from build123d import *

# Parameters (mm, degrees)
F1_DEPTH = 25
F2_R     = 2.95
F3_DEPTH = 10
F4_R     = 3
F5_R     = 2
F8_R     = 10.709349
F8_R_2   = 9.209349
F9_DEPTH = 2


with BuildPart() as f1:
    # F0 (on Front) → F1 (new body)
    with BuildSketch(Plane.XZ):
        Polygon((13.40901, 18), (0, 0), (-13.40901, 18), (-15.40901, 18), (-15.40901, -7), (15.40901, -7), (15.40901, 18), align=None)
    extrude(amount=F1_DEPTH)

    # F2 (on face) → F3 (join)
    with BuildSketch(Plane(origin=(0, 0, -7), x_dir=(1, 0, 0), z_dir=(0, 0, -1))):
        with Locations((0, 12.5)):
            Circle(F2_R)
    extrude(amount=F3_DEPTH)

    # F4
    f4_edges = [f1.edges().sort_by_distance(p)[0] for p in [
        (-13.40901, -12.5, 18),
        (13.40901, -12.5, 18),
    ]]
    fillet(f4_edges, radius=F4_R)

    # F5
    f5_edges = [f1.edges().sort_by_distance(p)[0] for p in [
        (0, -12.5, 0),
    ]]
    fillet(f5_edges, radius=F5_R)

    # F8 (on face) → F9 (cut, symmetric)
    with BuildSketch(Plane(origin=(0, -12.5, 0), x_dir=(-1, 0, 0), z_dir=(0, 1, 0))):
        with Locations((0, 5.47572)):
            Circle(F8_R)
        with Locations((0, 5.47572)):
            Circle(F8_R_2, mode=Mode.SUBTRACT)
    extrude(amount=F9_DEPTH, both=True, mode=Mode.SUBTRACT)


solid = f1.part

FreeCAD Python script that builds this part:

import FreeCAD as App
import Part
import Sketcher
from FreeCAD import Vector
Q = App.Units.Quantity


def edges_at(feature, points):
    """Names of the edges that pass closest to the given points."""
    edges = feature.Shape.Edges
    near = lambda p: min(range(len(edges)), key=lambda i: edges[i].distToShape(Part.Vertex(*p))[0])
    return sorted({f"Edge{near(p) + 1}" for p in points})


def add_polygon(sketch, points):
    """Adds a closed chain of lines whose ends are joined by coincident constraints."""
    first, n = sketch.GeometryCount, len(points)
    for a, b in zip(points, points[1:] + points[:1]):
        sketch.addGeometry(Part.LineSegment(App.Vector(*a, 0), App.Vector(*b, 0)), False)
    for i in range(n):
        sketch.addConstraint(Sketcher.Constraint("Coincident", first + i, 2, first + (i + 1) % n, 1))

doc = App.newDocument("Part")
body = doc.addObject("PartDesign::Body", "Body")

sketch1 = doc.addObject("Sketcher::SketchObject", "Sketch")
body.addObject(sketch1)
sketch1.AttachmentSupport = (doc.XZ_Plane, [""])
sketch1.MapMode = "FlatFace"
add_polygon(sketch1, [(13.4, 18), (0, 0), (-13.4, 18), (-15.4, 18), (-15.4, -7), (15.4, -7), (15.4, 18)])
sketch1.addConstraint([
    Sketcher.Constraint("Horizontal", 2),
    Sketcher.Constraint("Vertical", 3),
    Sketcher.Constraint("Horizontal", 4),
    Sketcher.Constraint("Vertical", 5),
    Sketcher.Constraint("Horizontal", 6),
    Sketcher.Constraint("Coincident", 0, 2, -1, 1),
    Sketcher.Constraint("Symmetric", 2, 2, 5, 2, -2),
    Sketcher.Constraint("Equal", 2, 6),
    Sketcher.Constraint("DistanceX", 2, 2, 2, 1, Q("2 mm")),
    Sketcher.Constraint("DistanceY", 3, 2, 3, 1, Q("25 mm")),
    Sketcher.Constraint("DistanceY", -1, 1, 1, 2, Q("18 mm")),
    Sketcher.Constraint("DistanceX", 4, 1, 4, 2, Q("30.81802 mm")),
])
pad1 = doc.addObject("PartDesign::Pad", "Pad")
body.addObject(pad1)
pad1.Profile = sketch1
pad1.Length = 25

sketch2 = doc.addObject("Sketcher::SketchObject", "Sketch001")
body.addObject(sketch2)
sketch2.AttachmentSupport = (doc.XY_Plane, [""])
sketch2.MapMode = "FlatFace"
sketch2.AttachmentOffset = App.Placement(Vector(0, 0, -7), App.Rotation())
sketch2.addGeometry(Part.Circle(Vector(0, -12.5, 0), Vector(0, 0, 1), 3), False)
sketch2.addConstraint([
    Sketcher.Constraint("PointOnObject", 0, 3, -2),
    Sketcher.Constraint("Diameter", 0, Q("5.9 mm")),
    Sketcher.Constraint("DistanceY", 0, 3, -1, 1, Q("12.5 mm")),
])
pad2 = doc.addObject("PartDesign::Pad", "Pad001")
body.addObject(pad2)
pad2.Profile = sketch2
pad2.Length = 10
pad2.Reversed = True
doc.recompute()

fillet = doc.addObject("PartDesign::Fillet", "Fillet")
body.addObject(fillet)
fillet.Base = (pad2, edges_at(pad2, [(-13.409, -12.5, 18), (13.409, -12.5, 18)]))
fillet.Radius = 3
doc.recompute()

fillet2 = doc.addObject("PartDesign::Fillet", "Fillet001")
body.addObject(fillet2)
fillet2.Base = (fillet, edges_at(fillet, [(0, -12.5, 0)]))
fillet2.Radius = 2

sketch3 = doc.addObject("Sketcher::SketchObject", "Sketch002")
body.addObject(sketch3)
sketch3.AttachmentSupport = (doc.XZ_Plane, [""])
sketch3.MapMode = "FlatFace"
sketch3.AttachmentOffset = App.Placement(Vector(0, 0, 12.5), App.Rotation())
sketch3.addGeometry([
    Part.Circle(Vector(0, 5, 0), Vector(0, 0, 1), 11),
    Part.Circle(Vector(0, 5, 0), Vector(0, 0, 1), 9),
], False)
sketch3.addConstraint([
    Sketcher.Constraint("Coincident", 1, 3, 0, 3),
    Sketcher.Constraint("PointOnObject", 0, 3, -2),
    Sketcher.Constraint("Diameter", 0, Q("21.418698 mm")),
    Sketcher.Constraint("Diameter", 1, Q("18.418698 mm")),
    Sketcher.Constraint("DistanceY", -1, 1, 0, 3, Q("5.47572 mm")),
])
pocket1 = doc.addObject("PartDesign::Pocket", "Pocket")
body.addObject(pocket1)
pocket1.Profile = sketch3
pocket1.Length = 4
pocket1.Midplane = True

doc.recompute()
